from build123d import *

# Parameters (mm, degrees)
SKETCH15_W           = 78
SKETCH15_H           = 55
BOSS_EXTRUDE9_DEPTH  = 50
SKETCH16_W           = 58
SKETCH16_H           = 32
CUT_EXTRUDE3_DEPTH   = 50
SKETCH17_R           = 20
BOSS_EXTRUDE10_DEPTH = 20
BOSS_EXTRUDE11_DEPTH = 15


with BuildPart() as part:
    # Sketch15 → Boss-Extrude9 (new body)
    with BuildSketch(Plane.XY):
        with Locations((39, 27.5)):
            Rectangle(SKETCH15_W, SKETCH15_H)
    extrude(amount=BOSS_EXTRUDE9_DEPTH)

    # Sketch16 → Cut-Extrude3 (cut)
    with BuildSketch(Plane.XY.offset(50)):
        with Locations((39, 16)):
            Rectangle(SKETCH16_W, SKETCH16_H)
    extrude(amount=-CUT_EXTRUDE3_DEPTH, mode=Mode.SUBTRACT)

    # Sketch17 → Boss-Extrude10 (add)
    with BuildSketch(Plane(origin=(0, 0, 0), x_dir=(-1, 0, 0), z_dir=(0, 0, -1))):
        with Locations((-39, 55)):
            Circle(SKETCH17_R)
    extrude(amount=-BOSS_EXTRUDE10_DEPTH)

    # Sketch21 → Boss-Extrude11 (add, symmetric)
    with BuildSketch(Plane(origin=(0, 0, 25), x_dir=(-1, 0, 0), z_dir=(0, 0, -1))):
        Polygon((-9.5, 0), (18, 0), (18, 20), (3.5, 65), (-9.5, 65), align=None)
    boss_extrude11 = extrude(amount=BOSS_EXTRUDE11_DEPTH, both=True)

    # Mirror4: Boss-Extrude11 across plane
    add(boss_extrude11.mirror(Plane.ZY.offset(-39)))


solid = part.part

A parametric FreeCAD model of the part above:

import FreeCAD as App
import Part
import Sketcher
Q = App.Units.Quantity


def add_polygon(sketch, points):
    """Adds a closed chain of lines whose ends are joined by coincident constraints."""
    first, n = sketch.GeometryCount, len(points)
    for a, b in zip(points, points[1:] + points[:1]):
        sketch.addGeometry(Part.LineSegment(App.Vector(*a, 0), App.Vector(*b, 0)), False)
    for i in range(n):
        sketch.addConstraint(Sketcher.Constraint("Coincident", first + i, 2, first + (i + 1) % n, 1))

doc = App.newDocument("Part")
params = doc.addObject("Spreadsheet::Sheet", "Params")
for row, (alias, value) in enumerate([
    ("sketch1_width", "78 mm"),
    ("sketch1_height", "55 mm"),
    ("pad1_length", "50 mm"),
    ("sketch2_width", "58 mm"),
    ("sketch2_height", "32 mm"),
    ("pocket1_length", "50 mm"),
    ("sketch3_diameter", "40 mm"),
    ("pad2_length", "20 mm"),
    ("sketch4_width", "13 mm"),
    ("sketch4_height", "20 mm"),
    ("sketch4_height2", "65 mm"),
    ("sketch4_width2", "27.5 mm"),
    ("pad3_length", "30 mm"),
], start=1):
    params.set(f"A{row}", alias)
    params.set(f"B{row}", "=" + value)
    params.setAlias(f"B{row}", alias)

body = doc.addObject("PartDesign::Body", "Body")

# Sketch on XY plane
sketch1 = doc.addObject("Sketcher::SketchObject", "Sketch")
body.addObject(sketch1)
sketch1.AttachmentSupport = (doc.XY_Plane, [""])
sketch1.MapMode = "FlatFace"
add_polygon(sketch1, [(0, 55), (0, 0), (78, 0), (78, 55)])  # lines 0-3
sketch1.addConstraint(Sketcher.Constraint("Vertical", 0))
sketch1.addConstraint(Sketcher.Constraint("Horizontal", 1))
sketch1.addConstraint(Sketcher.Constraint("Vertical", 2))
sketch1.addConstraint(Sketcher.Constraint("Horizontal", 3))
sketch1.addConstraint(Sketcher.Constraint("Coincident", 0, 2, -1, 1))
sketch1.addConstraint(Sketcher.Constraint("DistanceX", 1, 1, 1, 2, Q("78 mm")))
sketch1.addConstraint(Sketcher.Constraint("DistanceY", 0, 2, 0, 1, Q("55 mm")))
sketch1.setExpression("Constraints[9]", "Params.sketch1_width")
sketch1.setExpression("Constraints[10]", "Params.sketch1_height")
pad1 = doc.addObject("PartDesign::Pad", "Pad")
body.addObject(pad1)
pad1.Profile = sketch1
pad1.setExpression("Length", "Params.pad1_length")

# Sketch on XY plane
sketch2 = doc.addObject("Sketcher::SketchObject", "Sketch001")
body.addObject(sketch2)
sketch2.AttachmentSupport = (doc.XY_Plane, [""])
sketch2.MapMode = "FlatFace"
sketch2.AttachmentOffset = App.Placement(App.Vector(0, 0, 50), App.Rotation())
add_polygon(sketch2, [(10, 32), (10, 0), (68, 0), (68, 32)])  # lines 0-3
sketch2.addConstraint(Sketcher.Constraint("Vertical", 0))
sketch2.addConstraint(Sketcher.Constraint("Horizontal", 1))
sketch2.addConstraint(Sketcher.Constraint("Vertical", 2))
sketch2.addConstraint(Sketcher.Constraint("Horizontal", 3))
sketch2.addConstraint(Sketcher.Constraint("PointOnObject", 0, 2, -1))
sketch2.addConstraint(Sketcher.Constraint("DistanceX", 1, 1, 1, 2, Q("58 mm")))
sketch2.addConstraint(Sketcher.Constraint("DistanceY", 0, 2, 0, 1, Q("32 mm")))
sketch2.addConstraint(Sketcher.Constraint("DistanceX", -1, 1, 0, 2, Q("10 mm")))
sketch2.setExpression("Constraints[9]", "Params.sketch2_width")
sketch2.setExpression("Constraints[10]", "Params.sketch2_height")
pocket1 = doc.addObject("PartDesign::Pocket", "Pocket")
body.addObject(pocket1)
pocket1.Profile = sketch2
pocket1.setExpression("Length", "Params.pocket1_length")

# Sketch on XY plane
sketch3 = doc.addObject("Sketcher::SketchObject", "Sketch002")
body.addObject(sketch3)
sketch3.AttachmentSupport = (doc.XY_Plane, [""])
sketch3.MapMode = "FlatFace"
sketch3.addGeometry(Part.Circle(App.Vector(39, 55, 0), App.Vector(0, 0, 1), 20), False)
sketch3.addConstraint(Sketcher.Constraint("Diameter", 0, Q("40 mm")))
sketch3.addConstraint(Sketcher.Constraint("DistanceX", -1, 1, 0, 3, Q("39 mm")))
sketch3.addConstraint(Sketcher.Constraint("DistanceY", -1, 1, 0, 3, Q("55 mm")))
sketch3.setExpression("Constraints[0]", "Params.sketch3_diameter")
pad2 = doc.addObject("PartDesign::Pad", "Pad001")
body.addObject(pad2)
pad2.Profile = sketch3
pad2.setExpression("Length", "Params.pad2_length")

# Sketch on XY plane
sketch4 = doc.addObject("Sketcher::SketchObject", "Sketch003")
body.addObject(sketch4)
sketch4.AttachmentSupport = (doc.XY_Plane, [""])
sketch4.MapMode = "FlatFace"
sketch4.AttachmentOffset = App.Placement(App.Vector(0, 0, 25), App.Rotation())
add_polygon(sketch4, [(9.5, 0), (-18, 0), (-18, 20), (-3.5, 65), (9.5, 65)])  # lines 0-4
sketch4.addConstraint(Sketcher.Constraint("Horizontal", 0))
sketch4.addConstraint(Sketcher.Constraint("Vertical", 1))
sketch4.addConstraint(Sketcher.Constraint("Horizontal", 3))
sketch4.addConstraint(Sketcher.Constraint("Vertical", 4))
sketch4.addConstraint(Sketcher.Constraint("PointOnObject", 0, 2, -1))
sketch4.addConstraint(Sketcher.Constraint("DistanceX", 3, 1, 3, 2, Q("13 mm")))
sketch4.addConstraint(Sketcher.Constraint("DistanceY", 1, 1, 1, 2, Q("20 mm")))
sketch4.addConstraint(Sketcher.Constraint("DistanceY", 4, 2, 4, 1, Q("65 mm")))
sketch4.addConstraint(Sketcher.Constraint("DistanceX", 0, 2, 0, 1, Q("27.5 mm")))
sketch4.addConstraint(Sketcher.Constraint("DistanceX", 0, 2, -1, 1, Q("18 mm")))
sketch4.setExpression("Constraints[10]", "Params.sketch4_width")
sketch4.setExpression("Constraints[11]", "Params.sketch4_height")
sketch4.setExpression("Constraints[12]", "Params.sketch4_height2")
sketch4.setExpression("Constraints[13]", "Params.sketch4_width2")
pad3 = doc.addObject("PartDesign::Pad", "Pad002")
body.addObject(pad3)
pad3.Profile = sketch4
pad3.setExpression("Length", "Params.pad3_length")
pad3.Midplane = True
doc.recompute()

datumplane = doc.addObject("PartDesign::Plane", "DatumPlane")
body.addObject(datumplane)
datumplane.AttachmentSupport = (doc.YZ_Plane, [""])
datumplane.MapMode = "FlatFace"
datumplane.AttachmentOffset = App.Placement(App.Vector(0, 0, 39), App.Rotation())
mirrored = doc.addObject("PartDesign::Mirrored", "Mirrored")
body.addObject(mirrored)
mirrored.Originals = [pad3]
mirrored.MirrorPlane = (datumplane, [""])
body.Tip = mirrored

doc.recompute()
